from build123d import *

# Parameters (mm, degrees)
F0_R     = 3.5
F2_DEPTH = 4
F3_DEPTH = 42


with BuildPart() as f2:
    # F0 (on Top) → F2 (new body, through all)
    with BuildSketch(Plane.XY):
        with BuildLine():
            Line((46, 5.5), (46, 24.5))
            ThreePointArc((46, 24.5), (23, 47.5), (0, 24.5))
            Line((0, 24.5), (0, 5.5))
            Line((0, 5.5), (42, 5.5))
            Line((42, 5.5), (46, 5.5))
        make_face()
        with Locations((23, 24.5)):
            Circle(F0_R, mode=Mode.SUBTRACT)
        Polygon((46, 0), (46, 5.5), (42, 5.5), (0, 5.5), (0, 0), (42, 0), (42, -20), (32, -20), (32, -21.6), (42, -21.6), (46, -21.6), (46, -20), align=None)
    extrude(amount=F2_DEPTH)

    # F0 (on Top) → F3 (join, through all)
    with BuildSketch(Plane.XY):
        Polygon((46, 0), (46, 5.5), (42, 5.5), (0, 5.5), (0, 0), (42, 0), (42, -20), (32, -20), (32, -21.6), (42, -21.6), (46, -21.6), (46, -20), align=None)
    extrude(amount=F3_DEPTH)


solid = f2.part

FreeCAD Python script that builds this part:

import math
import FreeCAD as App
import Part
import Sketcher
from FreeCAD import Vector
Q = App.Units.Quantity


def add_polygon(sketch, points):
    """Adds a closed chain of lines whose ends are joined by coincident constraints."""
    first, n = sketch.GeometryCount, len(points)
    for a, b in zip(points, points[1:] + points[:1]):
        sketch.addGeometry(Part.LineSegment(App.Vector(*a, 0), App.Vector(*b, 0)), False)
    for i in range(n):
        sketch.addConstraint(Sketcher.Constraint("Coincident", first + i, 2, first + (i + 1) % n, 1))

doc = App.newDocument("Part")
body = doc.addObject("PartDesign::Body", "Body")

# Sketch on XY plane
sketch1 = doc.addObject("Sketcher::SketchObject", "Sketch")
body.addObject(sketch1)
sketch1.AttachmentSupport = (doc.XY_Plane, [""])
sketch1.MapMode = "FlatFace"
sketch1.addGeometry(Part.ArcOfCircle(Part.Circle(Vector(23, 24.5, 0), Vector(0, 0, 1), 23), math.radians(0), math.radians(180)), False)
sketch1.addGeometry(Part.LineSegment(Vector(0, 24.5, 0), Vector(0, 0, 0)), False)
sketch1.addGeometry(Part.LineSegment(Vector(0, 0, 0), Vector(42, 0, 0)), False)
sketch1.addGeometry(Part.LineSegment(Vector(42, 0, 0), Vector(42, -20, 0)), False)
sketch1.addGeometry(Part.LineSegment(Vector(42, -20, 0), Vector(32, -20, 0)), False)
sketch1.addGeometry(Part.LineSegment(Vector(32, -20, 0), Vector(32, -21.6, 0)), False)
sketch1.addGeometry(Part.LineSegment(Vector(32, -21.6, 0), Vector(46, -21.6, 0)), False)
sketch1.addGeometry(Part.LineSegment(Vector(46, -21.6, 0), Vector(46, 24.5, 0)), False)
sketch1.addGeometry(Part.Circle(Vector(23, 24.5, 0), Vector(0, 0, 1), 3.5), False)
sketch1.addConstraint(Sketcher.Constraint("Tangent", 0, 2, 1, 1))
sketch1.addConstraint(Sketcher.Constraint("Coincident", 1, 2, 2, 1))
sketch1.addConstraint(Sketcher.Constraint("Coincident", 2, 2, 3, 1))
sketch1.addConstraint(Sketcher.Constraint("Coincident", 3, 2, 4, 1))
sketch1.addConstraint(Sketcher.Constraint("Coincident", 4, 2, 5, 1))
sketch1.addConstraint(Sketcher.Constraint("Coincident", 5, 2, 6, 1))
sketch1.addConstraint(Sketcher.Constraint("Coincident", 6, 2, 7, 1))
sketch1.addConstraint(Sketcher.Constraint("Tangent", 7, 2, 0, 1))
sketch1.addConstraint(Sketcher.Constraint("Vertical", 1))
sketch1.addConstraint(Sketcher.Constraint("Horizontal", 2))
sketch1.addConstraint(Sketcher.Constraint("Vertical", 3))
sketch1.addConstraint(Sketcher.Constraint("Horizontal", 4))
sketch1.addConstraint(Sketcher.Constraint("Vertical", 5))
sketch1.addConstraint(Sketcher.Constraint("Horizontal", 6))
sketch1.addConstraint(Sketcher.Constraint("Vertical", 7))
sketch1.addConstraint(Sketcher.Constraint("Coincident", 1, 2, -1, 1))
sketch1.addConstraint(Sketcher.Constraint("Coincident", 8, 3, 0, 3))
sketch1.addConstraint(Sketcher.Constraint("Diameter", 8, Q("7 mm")))
sketch1.addConstraint(Sketcher.Constraint("Radius", 0, Q("23 mm")))
sketch1.addConstraint(Sketcher.Constraint("DistanceX", 2, 1, 2, 2, Q("42 mm")))
sketch1.addConstraint(Sketcher.Constraint("DistanceX", 4, 2, 4, 1, Q("10 mm")))
sketch1.addConstraint(Sketcher.Constraint("DistanceY", 3, 2, 3, 1, Q("20 mm")))
sketch1.addConstraint(Sketcher.Constraint("DistanceY", 1, 2, 1, 1, Q("24.5 mm")))
sketch1.addConstraint(Sketcher.Constraint("DistanceY", 5, 2, 5, 1, Q("1.6 mm")))
pad1 = doc.addObject("PartDesign::Pad", "Pad")
body.addObject(pad1)
pad1.Profile = sketch1
pad1.Length = 4

# Sketch on XY plane
sketch2 = doc.addObject("Sketcher::SketchObject", "Sketch001")
body.addObject(sketch2)
sketch2.AttachmentSupport = (doc.XY_Plane, [""])
sketch2.MapMode = "FlatFace"
add_polygon(sketch2, [(46, 5.5), (0, 5.5), (0, 0), (42, 0), (42, -20), (32, -20), (32, -21.6), (46, -21.6)])  # lines 0-7
sketch2.addConstraint(Sketcher.Constraint("Horizontal", 0))
sketch2.addConstraint(Sketcher.Constraint("Vertical", 1))
sketch2.addConstraint(Sketcher.Constraint("Horizontal", 2))
sketch2.addConstraint(Sketcher.Constraint("Vertical", 3))
sketch2.addConstraint(Sketcher.Constraint("Horizontal", 4))
sketch2.addConstraint(Sketcher.Constraint("Vertical", 5))
sketch2.addConstraint(Sketcher.Constraint("Horizontal", 6))
sketch2.addConstraint(Sketcher.Constraint("Vertical", 7))
sketch2.addConstraint(Sketcher.Constraint("Coincident", 1, 2, -1, 1))
sketch2.addConstraint(Sketcher.Constraint("DistanceX", 0, 2, 0, 1, Q("46 mm")))
sketch2.addConstraint(Sketcher.Constraint("DistanceX", 2, 1, 2, 2, Q("42 mm")))
sketch2.addConstraint(Sketcher.Constraint("DistanceX", 4, 2, 4, 1, Q("10 mm")))
sketch2.addConstraint(Sketcher.Constraint("DistanceY", 3, 2, 3, 1, Q("20 mm")))
sketch2.addConstraint(Sketcher.Constraint("DistanceY", 1, 2, 1, 1, Q("5.5 mm")))
sketch2.addConstraint(Sketcher.Constraint("DistanceY", 5, 2, 5, 1, Q("1.6 mm")))
pad2 = doc.addObject("PartDesign::Pad", "Pad001")
body.addObject(pad2)
pad2.Profile = sketch2
pad2.Length = 42

doc.recompute()
